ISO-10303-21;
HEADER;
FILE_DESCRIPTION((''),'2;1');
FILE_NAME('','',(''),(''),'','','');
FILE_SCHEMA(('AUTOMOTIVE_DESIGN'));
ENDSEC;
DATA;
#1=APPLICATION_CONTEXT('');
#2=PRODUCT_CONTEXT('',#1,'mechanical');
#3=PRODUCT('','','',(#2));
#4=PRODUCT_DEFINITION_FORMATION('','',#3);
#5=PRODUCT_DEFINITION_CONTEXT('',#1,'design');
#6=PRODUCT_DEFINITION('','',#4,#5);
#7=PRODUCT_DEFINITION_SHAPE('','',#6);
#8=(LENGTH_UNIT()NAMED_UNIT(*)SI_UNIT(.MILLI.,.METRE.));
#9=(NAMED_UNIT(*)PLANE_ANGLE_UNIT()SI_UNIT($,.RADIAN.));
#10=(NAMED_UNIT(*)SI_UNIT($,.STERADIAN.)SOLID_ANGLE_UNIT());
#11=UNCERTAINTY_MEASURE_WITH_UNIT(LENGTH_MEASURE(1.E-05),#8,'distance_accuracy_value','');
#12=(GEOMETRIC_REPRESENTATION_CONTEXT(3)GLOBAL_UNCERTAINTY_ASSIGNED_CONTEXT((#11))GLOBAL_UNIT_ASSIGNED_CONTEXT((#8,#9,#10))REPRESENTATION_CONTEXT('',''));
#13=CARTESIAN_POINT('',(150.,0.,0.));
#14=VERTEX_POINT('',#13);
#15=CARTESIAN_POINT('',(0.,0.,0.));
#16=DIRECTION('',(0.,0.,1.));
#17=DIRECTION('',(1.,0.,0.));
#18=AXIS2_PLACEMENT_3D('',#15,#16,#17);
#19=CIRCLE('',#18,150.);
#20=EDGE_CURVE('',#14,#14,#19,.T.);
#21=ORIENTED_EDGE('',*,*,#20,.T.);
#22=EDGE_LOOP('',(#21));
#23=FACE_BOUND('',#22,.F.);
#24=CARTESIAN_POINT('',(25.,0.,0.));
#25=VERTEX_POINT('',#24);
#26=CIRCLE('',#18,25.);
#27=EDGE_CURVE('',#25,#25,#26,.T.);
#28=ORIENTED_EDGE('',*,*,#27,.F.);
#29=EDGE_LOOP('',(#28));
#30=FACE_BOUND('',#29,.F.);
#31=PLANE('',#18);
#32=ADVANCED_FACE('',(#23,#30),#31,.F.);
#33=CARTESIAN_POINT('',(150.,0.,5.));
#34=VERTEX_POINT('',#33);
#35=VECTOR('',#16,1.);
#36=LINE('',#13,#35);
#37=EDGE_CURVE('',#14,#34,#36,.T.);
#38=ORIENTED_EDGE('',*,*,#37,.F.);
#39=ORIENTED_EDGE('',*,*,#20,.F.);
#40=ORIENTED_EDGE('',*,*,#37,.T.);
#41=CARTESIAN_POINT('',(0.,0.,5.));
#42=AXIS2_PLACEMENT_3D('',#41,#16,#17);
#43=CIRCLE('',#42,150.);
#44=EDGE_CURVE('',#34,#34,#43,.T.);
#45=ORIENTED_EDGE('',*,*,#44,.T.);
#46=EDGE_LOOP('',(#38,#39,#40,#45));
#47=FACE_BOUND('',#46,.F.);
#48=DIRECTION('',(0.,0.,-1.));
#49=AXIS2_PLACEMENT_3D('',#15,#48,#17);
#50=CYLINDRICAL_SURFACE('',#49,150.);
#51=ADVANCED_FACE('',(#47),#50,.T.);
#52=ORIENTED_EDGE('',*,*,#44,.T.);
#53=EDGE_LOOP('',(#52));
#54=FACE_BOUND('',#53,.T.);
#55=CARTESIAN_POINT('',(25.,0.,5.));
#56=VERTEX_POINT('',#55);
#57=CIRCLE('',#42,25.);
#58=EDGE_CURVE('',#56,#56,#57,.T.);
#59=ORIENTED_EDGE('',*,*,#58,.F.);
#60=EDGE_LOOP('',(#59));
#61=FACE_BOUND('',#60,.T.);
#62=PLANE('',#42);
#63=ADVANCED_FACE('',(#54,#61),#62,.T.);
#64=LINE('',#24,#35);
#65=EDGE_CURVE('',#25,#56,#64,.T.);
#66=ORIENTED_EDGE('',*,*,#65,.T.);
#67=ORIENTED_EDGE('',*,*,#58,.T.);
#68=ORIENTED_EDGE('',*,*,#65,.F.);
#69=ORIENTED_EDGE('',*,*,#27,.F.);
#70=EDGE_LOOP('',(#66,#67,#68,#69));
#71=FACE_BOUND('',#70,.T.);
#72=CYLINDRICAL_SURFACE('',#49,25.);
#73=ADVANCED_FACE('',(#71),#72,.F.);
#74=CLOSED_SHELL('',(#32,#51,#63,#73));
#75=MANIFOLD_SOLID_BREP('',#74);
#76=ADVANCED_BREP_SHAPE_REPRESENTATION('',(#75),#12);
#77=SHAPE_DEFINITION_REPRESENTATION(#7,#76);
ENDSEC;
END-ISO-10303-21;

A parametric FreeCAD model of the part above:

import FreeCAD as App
import Part
import Sketcher
from FreeCAD import Vector
Q = App.Units.Quantity

doc = App.newDocument("Part")
body = doc.addObject("PartDesign::Body", "Body")

# Sketch on XY plane
sketch1 = body.newObject("Sketcher::SketchObject", "Sketch")
sketch1.AttachmentSupport = (doc.getObject("XY_Plane"), [""])
sketch1.MapMode = "FlatFace"
sketch1.addGeometry(Part.Circle(Vector(0, 0, 0), Vector(0, 0, 1), 25), False)
sketch1.addConstraint([
    Sketcher.Constraint("Coincident", 0, 3, -1, 1),
    Sketcher.Constraint("Diameter", 0, Q("50 mm")),
])
pad1 = body.newObject("PartDesign::Pad", "Pad")
pad1.Profile = sketch1
pad1.Length = 5
body2 = doc.addObject("PartDesign::Body", "Body001")

# Sketch on XY plane
sketch2 = body2.newObject("Sketcher::SketchObject", "Sketch001")
sketch2.AttachmentSupport = (doc.getObject("XY_Plane001"), [""])
sketch2.MapMode = "FlatFace"
sketch2.addGeometry(Part.Circle(Vector(0, 0, 0), Vector(0, 0, 1), 150), False)
sketch2.addConstraint([
    Sketcher.Constraint("Coincident", 0, 3, -1, 1),
    Sketcher.Constraint("Diameter", 0, Q("300 mm")),
])
pad2 = body2.newObject("PartDesign::Pad", "Pad001")
pad2.Profile = sketch2
pad2.Length = 5
doc.recompute()

boolean = body2.newObject("PartDesign::Boolean", "Boolean")
boolean.Type = "Cut"
boolean.addObjects([body])

doc.recompute()
